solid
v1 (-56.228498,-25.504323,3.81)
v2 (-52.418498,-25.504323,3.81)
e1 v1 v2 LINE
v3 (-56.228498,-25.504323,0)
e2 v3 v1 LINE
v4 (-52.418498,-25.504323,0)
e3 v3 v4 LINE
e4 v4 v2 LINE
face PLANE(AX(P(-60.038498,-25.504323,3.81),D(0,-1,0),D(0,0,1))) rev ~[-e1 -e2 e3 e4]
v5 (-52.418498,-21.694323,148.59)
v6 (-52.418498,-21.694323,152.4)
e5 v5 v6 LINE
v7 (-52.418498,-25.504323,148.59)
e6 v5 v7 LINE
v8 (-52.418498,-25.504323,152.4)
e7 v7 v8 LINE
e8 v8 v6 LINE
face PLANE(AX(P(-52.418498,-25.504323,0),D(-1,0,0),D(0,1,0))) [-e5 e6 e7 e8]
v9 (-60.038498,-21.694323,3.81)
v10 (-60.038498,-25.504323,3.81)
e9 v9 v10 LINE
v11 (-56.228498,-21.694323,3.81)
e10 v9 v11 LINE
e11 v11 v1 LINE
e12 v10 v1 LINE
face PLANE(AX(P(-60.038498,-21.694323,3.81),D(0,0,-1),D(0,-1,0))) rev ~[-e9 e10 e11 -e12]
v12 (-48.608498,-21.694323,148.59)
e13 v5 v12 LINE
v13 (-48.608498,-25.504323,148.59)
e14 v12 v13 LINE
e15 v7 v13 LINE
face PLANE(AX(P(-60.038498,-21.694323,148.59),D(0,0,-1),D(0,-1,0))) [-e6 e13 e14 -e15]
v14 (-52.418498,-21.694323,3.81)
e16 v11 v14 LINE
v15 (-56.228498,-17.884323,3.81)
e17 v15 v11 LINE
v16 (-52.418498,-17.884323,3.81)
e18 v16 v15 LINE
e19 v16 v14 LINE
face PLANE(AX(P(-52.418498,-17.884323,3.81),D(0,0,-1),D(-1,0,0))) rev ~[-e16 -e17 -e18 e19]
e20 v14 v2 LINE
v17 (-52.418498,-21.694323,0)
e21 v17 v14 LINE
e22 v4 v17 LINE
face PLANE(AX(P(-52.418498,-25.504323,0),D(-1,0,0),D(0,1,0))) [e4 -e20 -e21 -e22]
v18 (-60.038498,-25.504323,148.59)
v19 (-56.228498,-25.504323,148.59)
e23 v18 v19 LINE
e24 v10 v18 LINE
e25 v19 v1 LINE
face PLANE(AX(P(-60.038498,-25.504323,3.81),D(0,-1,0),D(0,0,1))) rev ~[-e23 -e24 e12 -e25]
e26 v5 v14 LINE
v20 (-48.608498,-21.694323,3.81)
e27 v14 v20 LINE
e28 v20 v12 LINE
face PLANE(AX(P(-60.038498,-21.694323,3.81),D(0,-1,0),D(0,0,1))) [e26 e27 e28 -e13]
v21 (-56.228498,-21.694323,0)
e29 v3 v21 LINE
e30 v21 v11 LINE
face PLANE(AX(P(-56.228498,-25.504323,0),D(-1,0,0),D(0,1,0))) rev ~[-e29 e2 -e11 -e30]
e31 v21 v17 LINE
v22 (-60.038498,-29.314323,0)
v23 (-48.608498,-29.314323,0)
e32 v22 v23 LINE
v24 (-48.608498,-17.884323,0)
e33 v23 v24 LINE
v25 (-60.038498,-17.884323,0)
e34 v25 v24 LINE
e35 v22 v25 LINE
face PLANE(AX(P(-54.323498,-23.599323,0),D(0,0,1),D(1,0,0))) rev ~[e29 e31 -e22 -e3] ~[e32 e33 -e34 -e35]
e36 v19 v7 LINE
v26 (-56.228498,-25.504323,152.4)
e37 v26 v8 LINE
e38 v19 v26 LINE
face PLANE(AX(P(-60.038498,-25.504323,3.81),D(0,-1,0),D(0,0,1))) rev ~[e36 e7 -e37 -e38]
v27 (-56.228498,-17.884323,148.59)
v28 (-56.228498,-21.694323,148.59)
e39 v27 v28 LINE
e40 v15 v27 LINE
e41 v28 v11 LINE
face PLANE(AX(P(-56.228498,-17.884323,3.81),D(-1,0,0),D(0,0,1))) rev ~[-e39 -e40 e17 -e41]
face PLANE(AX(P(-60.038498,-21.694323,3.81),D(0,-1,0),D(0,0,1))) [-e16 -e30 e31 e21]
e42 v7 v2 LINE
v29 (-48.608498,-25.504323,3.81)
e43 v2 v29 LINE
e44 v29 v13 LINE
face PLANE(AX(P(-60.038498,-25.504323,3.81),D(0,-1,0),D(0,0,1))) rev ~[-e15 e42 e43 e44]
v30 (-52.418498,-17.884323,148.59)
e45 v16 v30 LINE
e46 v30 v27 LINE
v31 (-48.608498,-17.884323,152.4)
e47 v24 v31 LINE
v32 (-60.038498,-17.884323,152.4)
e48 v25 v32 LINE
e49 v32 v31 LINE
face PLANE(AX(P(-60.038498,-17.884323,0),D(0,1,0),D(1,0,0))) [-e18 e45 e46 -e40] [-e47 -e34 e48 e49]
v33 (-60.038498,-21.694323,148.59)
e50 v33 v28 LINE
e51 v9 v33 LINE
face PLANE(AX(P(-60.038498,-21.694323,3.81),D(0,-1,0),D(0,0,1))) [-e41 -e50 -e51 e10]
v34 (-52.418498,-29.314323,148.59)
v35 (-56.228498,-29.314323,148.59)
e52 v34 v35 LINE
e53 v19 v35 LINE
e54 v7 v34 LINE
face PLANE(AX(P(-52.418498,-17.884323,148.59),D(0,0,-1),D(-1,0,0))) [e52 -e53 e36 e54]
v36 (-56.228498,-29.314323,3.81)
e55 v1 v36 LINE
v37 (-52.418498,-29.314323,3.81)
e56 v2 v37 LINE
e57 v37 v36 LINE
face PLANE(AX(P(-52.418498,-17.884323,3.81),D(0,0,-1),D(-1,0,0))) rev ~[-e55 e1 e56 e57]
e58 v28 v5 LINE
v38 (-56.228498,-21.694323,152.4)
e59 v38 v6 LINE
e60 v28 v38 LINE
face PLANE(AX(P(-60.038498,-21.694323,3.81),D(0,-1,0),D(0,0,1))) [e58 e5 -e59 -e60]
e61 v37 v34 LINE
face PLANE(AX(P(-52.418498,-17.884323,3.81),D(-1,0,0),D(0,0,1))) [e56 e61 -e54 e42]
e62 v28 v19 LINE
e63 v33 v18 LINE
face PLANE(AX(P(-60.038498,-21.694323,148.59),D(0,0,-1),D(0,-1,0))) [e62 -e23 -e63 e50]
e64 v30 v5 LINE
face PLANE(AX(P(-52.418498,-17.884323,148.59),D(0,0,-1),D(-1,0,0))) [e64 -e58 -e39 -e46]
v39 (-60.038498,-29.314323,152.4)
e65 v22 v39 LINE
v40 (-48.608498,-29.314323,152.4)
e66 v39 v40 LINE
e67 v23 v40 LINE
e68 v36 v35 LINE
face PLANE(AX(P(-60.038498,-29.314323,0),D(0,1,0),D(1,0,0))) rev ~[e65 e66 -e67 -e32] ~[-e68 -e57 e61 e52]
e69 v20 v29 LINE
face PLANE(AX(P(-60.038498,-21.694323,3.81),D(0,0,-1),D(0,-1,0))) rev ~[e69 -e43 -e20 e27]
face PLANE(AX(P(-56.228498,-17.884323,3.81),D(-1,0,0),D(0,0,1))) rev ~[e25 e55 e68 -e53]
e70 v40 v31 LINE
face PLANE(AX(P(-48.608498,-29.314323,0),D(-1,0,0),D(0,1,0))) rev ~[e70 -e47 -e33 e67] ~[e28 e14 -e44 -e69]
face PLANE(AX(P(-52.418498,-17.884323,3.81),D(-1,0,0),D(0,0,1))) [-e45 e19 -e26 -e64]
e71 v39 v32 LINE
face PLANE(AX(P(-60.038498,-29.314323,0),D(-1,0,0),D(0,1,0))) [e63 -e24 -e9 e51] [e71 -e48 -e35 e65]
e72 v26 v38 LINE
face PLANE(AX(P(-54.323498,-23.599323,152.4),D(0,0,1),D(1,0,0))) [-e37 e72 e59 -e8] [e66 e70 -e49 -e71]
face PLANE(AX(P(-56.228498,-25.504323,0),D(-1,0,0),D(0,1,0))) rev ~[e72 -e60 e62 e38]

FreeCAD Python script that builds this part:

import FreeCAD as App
import Part
import Sketcher
Q = App.Units.Quantity


def add_polygon(sketch, points):
    """Adds a closed chain of lines whose ends are joined by coincident constraints."""
    first, n = sketch.GeometryCount, len(points)
    for a, b in zip(points, points[1:] + points[:1]):
        sketch.addGeometry(Part.LineSegment(App.Vector(*a, 0), App.Vector(*b, 0)), False)
    for i in range(n):
        sketch.addConstraint(Sketcher.Constraint("Coincident", first + i, 2, first + (i + 1) % n, 1))

doc = App.newDocument("Part")
body = doc.addObject("PartDesign::Body", "Body")

sketch1 = body.newObject("Sketcher::SketchObject", "Sketch")
sketch1.AttachmentSupport = (doc.getObject("XY_Plane"), [""])
sketch1.MapMode = "FlatFace"
add_polygon(sketch1, [(-60, -17.9), (-60, -29.3), (-48.6, -29.3), (-48.6, -17.9)])
add_polygon(sketch1, [(-52.4, -25.5), (-56.2, -25.5), (-56.2, -21.7), (-52.4, -21.7)])
sketch1.addConstraint([
    Sketcher.Constraint("Vertical", 0),
    Sketcher.Constraint("Horizontal", 1),
    Sketcher.Constraint("Vertical", 2),
    Sketcher.Constraint("Horizontal", 3),
    Sketcher.Constraint("Horizontal", 4),
    Sketcher.Constraint("Vertical", 5),
    Sketcher.Constraint("Horizontal", 6),
    Sketcher.Constraint("Vertical", 7),
    Sketcher.Constraint("Equal", 3, 0),
    Sketcher.Constraint("Equal", 6, 5),
    Sketcher.Constraint("DistanceX", 1, 1, 1, 2, Q("0.45 in")),
    Sketcher.Constraint("DistanceX", 4, 2, 4, 1, Q("0.15 in")),
    Sketcher.Constraint("DistanceY", 4, 2, 3, 2, Q("0.3 in")),
    Sketcher.Constraint("DistanceX", 4, 2, 1, 2, Q("0.3 in")),
    Sketcher.Constraint("DistanceX", 4, 2, -1, 1, Q("56.228498 mm")),
    Sketcher.Constraint("DistanceY", 0, 2, -1, 1, Q("29.314323 mm")),
])
pad1 = body.newObject("PartDesign::Pad", "Pad")
pad1.Profile = sketch1
pad1.Length = Q("6 in")

sketch2 = body.newObject("Sketcher::SketchObject", "Sketch001")
sketch2.AttachmentSupport = (doc.getObject("YZ_Plane"), [""])
sketch2.MapMode = "FlatFace"
sketch2.AttachmentOffset = App.Placement(App.Vector(0, 0, -60.038498), App.Rotation())
add_polygon(sketch2, [(-21.7, 148.6), (-21.7, 3.8), (-25.5, 3.8), (-25.5, 148.6)])
sketch2.addConstraint([
    Sketcher.Constraint("Vertical", 0),
    Sketcher.Constraint("Horizontal", 1),
    Sketcher.Constraint("Vertical", 2),
    Sketcher.Constraint("Horizontal", 3),
    Sketcher.Constraint("DistanceY", 0, 2, 0, 1, Q("5.7 in")),
    Sketcher.Constraint("DistanceX", 1, 2, 1, 1, Q("0.15 in")),
    Sketcher.Constraint("DistanceY", -1, 1, 0, 2, Q("0.15 in")),
    Sketcher.Constraint("DistanceX", 0, 2, -1, 1, Q("21.694323 mm")),
])
pocket1 = body.newObject("PartDesign::Pocket", "Pocket")
pocket1.Profile = sketch2
pocket1.Length = Q("1 in")
pocket1.Reversed = True

sketch3 = body.newObject("Sketcher::SketchObject", "Sketch002")
sketch3.AttachmentSupport = (doc.getObject("XZ_Plane"), [""])
sketch3.MapMode = "FlatFace"
sketch3.AttachmentOffset = App.Placement(App.Vector(0, 0, 17.884323), App.Rotation())
add_polygon(sketch3, [(-52.4, 148.6), (-52.4, 3.8), (-56.2, 3.8), (-56.2, 148.6)])
sketch3.addConstraint([
    Sketcher.Constraint("Vertical", 0),
    Sketcher.Constraint("Horizontal", 1),
    Sketcher.Constraint("Vertical", 2),
    Sketcher.Constraint("Horizontal", 3),
    Sketcher.Constraint("DistanceY", 0, 2, 0, 1, Q("5.7 in")),
    Sketcher.Constraint("DistanceX", 1, 2, 1, 1, Q("0.15 in")),
    Sketcher.Constraint("DistanceY", -1, 1, 0, 2, Q("0.15 in")),
    Sketcher.Constraint("DistanceX", 1, 2, -1, 1, Q("56.228498 mm")),
])
pocket2 = body.newObject("PartDesign::Pocket", "Pocket001")
pocket2.Profile = sketch3
pocket2.Length = Q("1 in")
pocket2.Reversed = True

doc.recompute()
